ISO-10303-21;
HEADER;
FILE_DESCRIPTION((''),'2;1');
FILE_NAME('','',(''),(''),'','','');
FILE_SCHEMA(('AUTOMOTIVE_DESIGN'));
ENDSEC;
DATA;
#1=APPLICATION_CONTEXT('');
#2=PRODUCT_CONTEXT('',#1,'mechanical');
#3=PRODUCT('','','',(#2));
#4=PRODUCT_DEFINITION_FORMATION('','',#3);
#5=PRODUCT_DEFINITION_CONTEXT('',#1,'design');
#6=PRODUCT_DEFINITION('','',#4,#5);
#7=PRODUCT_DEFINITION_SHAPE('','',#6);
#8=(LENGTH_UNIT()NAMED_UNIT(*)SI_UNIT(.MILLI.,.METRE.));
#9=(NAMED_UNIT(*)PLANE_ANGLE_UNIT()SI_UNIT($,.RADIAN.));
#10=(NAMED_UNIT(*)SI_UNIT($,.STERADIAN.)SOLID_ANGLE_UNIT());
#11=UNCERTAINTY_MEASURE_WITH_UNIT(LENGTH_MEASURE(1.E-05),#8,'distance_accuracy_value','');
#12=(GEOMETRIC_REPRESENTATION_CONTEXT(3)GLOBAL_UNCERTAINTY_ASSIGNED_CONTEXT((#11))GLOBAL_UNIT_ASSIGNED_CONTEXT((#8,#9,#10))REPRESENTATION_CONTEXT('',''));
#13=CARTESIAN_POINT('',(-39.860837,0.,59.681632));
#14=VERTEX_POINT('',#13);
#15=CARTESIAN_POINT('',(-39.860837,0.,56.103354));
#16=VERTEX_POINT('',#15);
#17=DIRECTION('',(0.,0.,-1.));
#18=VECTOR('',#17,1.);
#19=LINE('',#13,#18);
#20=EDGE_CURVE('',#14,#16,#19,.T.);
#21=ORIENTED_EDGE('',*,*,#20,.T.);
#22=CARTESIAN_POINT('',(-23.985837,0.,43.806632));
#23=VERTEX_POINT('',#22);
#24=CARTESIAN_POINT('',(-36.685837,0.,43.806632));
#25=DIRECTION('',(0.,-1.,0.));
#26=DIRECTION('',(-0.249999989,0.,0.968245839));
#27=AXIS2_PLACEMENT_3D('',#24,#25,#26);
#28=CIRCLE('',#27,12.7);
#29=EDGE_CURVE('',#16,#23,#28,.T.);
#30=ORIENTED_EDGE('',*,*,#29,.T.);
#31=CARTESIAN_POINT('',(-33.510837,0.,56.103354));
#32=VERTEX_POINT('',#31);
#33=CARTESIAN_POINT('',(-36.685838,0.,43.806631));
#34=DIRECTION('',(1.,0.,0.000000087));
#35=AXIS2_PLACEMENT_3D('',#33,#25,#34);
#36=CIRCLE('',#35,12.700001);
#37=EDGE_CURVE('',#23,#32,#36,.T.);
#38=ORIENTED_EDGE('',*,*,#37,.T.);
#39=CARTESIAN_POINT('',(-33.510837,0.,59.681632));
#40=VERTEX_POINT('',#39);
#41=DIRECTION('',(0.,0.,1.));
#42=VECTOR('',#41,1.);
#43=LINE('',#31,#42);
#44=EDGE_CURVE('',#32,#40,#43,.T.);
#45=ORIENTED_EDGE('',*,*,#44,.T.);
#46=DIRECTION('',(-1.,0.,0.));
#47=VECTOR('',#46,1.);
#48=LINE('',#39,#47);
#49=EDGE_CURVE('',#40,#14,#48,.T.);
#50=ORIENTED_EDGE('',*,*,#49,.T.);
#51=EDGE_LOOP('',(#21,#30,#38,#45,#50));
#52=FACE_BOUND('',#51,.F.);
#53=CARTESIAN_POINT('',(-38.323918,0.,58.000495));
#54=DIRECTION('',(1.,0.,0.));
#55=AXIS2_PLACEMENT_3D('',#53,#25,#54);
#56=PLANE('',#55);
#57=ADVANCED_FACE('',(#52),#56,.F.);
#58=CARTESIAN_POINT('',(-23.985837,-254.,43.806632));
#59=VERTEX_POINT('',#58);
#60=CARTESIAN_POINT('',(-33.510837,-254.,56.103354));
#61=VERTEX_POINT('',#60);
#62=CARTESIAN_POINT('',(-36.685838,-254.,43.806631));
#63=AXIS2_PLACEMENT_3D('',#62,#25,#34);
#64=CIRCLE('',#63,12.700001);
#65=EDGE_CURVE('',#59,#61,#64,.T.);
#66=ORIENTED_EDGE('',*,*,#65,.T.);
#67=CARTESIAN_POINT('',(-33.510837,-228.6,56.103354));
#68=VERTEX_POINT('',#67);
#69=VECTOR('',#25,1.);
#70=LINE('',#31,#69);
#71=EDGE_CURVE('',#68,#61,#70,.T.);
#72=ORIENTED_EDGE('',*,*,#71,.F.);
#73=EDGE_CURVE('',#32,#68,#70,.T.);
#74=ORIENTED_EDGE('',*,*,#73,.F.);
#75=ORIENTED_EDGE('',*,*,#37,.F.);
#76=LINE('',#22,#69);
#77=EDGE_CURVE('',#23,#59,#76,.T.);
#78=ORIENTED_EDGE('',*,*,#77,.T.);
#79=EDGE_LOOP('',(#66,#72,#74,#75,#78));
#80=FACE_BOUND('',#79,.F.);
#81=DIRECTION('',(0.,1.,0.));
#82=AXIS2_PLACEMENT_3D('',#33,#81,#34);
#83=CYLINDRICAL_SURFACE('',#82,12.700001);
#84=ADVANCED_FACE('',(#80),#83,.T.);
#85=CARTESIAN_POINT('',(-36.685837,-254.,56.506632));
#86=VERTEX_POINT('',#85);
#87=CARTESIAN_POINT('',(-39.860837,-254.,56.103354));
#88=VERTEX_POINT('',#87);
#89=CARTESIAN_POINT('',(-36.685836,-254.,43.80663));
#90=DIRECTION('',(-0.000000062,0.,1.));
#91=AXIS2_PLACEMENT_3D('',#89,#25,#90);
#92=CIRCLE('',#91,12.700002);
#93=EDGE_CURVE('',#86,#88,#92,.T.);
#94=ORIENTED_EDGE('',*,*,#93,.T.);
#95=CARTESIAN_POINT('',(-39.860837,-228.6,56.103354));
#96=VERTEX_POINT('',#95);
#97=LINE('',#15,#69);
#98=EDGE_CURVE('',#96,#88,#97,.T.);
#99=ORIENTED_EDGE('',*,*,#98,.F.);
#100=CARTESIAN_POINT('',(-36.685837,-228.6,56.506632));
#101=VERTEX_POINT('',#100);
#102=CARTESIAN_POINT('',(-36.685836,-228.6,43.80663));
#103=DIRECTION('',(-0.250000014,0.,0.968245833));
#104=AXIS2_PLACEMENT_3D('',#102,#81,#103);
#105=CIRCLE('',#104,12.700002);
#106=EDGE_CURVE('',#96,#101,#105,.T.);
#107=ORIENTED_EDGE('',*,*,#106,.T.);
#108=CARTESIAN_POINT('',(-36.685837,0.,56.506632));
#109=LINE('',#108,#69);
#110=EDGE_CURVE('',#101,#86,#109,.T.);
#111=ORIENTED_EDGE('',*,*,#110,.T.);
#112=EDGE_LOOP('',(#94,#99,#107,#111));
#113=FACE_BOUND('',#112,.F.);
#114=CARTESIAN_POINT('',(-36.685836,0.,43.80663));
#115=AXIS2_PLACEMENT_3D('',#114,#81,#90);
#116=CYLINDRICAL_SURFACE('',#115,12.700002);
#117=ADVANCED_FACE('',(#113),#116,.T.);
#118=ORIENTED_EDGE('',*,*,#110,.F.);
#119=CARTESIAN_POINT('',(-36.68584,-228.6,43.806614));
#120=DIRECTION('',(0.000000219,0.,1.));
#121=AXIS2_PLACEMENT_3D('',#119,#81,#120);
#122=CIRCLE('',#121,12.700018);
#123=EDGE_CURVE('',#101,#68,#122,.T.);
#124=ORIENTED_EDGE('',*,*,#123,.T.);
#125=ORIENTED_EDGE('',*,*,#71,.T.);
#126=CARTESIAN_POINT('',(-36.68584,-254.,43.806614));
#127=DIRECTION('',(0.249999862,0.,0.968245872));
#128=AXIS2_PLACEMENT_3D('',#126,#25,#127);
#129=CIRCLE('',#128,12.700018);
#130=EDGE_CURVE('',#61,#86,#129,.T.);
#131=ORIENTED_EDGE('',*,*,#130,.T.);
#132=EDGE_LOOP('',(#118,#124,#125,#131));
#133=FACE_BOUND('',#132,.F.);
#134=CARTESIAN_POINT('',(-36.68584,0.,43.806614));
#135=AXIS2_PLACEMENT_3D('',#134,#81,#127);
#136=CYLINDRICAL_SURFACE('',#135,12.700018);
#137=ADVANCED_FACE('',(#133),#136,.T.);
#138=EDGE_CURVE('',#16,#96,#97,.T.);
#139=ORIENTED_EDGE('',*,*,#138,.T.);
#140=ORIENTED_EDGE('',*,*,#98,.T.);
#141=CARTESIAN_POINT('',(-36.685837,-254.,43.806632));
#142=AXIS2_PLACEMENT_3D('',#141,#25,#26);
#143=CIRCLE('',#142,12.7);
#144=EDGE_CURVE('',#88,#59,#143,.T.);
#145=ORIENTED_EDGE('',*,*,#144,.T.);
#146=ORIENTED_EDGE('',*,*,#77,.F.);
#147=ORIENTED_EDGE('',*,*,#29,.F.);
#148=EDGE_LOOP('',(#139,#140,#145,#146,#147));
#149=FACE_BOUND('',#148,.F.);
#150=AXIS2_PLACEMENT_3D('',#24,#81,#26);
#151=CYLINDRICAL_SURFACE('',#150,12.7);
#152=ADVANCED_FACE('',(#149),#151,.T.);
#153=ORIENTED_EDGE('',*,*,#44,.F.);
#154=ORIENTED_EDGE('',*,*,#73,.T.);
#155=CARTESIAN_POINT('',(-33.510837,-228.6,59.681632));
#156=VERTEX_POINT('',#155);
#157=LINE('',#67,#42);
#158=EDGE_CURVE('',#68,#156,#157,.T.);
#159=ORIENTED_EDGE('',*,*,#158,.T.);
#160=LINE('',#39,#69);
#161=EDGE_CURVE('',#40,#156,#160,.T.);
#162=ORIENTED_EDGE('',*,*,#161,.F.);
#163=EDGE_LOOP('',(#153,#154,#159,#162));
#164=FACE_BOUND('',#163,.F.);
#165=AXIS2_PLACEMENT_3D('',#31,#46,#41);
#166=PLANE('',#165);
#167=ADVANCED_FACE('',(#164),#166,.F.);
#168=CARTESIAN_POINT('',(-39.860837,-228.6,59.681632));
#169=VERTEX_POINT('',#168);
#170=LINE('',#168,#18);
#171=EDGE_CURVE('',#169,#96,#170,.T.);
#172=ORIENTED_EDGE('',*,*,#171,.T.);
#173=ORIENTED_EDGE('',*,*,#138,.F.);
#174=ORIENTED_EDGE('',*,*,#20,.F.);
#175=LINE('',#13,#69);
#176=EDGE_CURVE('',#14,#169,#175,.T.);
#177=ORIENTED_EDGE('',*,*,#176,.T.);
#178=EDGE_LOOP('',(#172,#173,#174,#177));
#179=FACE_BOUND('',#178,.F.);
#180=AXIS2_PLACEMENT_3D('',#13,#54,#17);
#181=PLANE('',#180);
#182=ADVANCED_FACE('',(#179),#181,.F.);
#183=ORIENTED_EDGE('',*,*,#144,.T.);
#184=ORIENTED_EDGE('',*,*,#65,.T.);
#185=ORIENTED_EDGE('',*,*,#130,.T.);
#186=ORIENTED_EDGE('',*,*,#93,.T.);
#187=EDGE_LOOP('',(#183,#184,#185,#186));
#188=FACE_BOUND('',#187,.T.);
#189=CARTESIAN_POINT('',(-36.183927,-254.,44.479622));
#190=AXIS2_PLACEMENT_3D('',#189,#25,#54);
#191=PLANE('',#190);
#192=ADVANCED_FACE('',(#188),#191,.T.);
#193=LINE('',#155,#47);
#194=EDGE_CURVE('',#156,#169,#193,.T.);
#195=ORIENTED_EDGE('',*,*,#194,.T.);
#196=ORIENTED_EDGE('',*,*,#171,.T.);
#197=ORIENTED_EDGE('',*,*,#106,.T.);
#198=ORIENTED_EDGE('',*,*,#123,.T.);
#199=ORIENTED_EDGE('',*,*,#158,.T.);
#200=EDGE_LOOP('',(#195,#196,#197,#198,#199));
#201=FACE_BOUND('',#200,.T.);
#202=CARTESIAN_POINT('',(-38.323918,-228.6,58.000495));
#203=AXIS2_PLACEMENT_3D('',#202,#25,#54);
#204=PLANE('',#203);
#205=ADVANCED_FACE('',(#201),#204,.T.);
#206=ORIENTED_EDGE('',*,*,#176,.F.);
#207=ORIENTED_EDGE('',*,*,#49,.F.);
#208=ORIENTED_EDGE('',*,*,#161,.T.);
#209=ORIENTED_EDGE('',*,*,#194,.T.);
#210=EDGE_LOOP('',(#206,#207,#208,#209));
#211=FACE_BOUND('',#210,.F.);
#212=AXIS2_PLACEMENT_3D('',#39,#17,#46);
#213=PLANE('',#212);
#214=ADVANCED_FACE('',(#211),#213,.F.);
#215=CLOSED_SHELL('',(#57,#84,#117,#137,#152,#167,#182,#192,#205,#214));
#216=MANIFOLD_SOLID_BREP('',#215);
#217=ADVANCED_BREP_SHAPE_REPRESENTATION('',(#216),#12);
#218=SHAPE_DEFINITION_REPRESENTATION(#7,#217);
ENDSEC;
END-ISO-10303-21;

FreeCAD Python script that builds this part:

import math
import FreeCAD as App
import Part
import Sketcher
from FreeCAD import Vector
Q = App.Units.Quantity

doc = App.newDocument("Part")
body = doc.addObject("PartDesign::Body", "Body")

# Sketch on XZ plane
sketch1 = body.newObject("Sketcher::SketchObject", "Sketch")
sketch1.AttachmentSupport = (doc.getObject("XZ_Plane"), [""])
sketch1.MapMode = "FlatFace"
sketch1.addGeometry([
    Part.ArcOfCircle(Part.Circle(Vector(-36.7, 43.8, 0), Vector(0, 0, 1), 12.7), math.radians(104), math.radians(360)),
    Part.ArcOfCircle(Part.Circle(Vector(-36.7, 43.8, 0), Vector(0, 0, 1), 12.7), math.radians(0), math.radians(76)),
    Part.ArcOfCircle(Part.Circle(Vector(-36.7, 43.8, 0), Vector(0, 0, 1), 12.7), math.radians(75.52), math.radians(90)),
    Part.ArcOfCircle(Part.Circle(Vector(-36.7, 43.8, 0), Vector(0, 0, 1), 12.7), math.radians(90), math.radians(104.48)),
], False)
sketch1.addConstraint([
    Sketcher.Constraint("Tangent", 0, 2, 1, 1),
    Sketcher.Constraint("Tangent", 1, 2, 2, 1),
    Sketcher.Constraint("Tangent", 2, 2, 3, 1),
    Sketcher.Constraint("Tangent", 3, 2, 0, 1),
    Sketcher.Constraint("Equal", 0, 1),
    Sketcher.Constraint("Horizontal", 1, 3, 0, 2),
    Sketcher.Constraint("Horizontal", 1, 2, 3, 2),
    Sketcher.Constraint("Vertical", 3, 3, 2, 2),
    Sketcher.Constraint("Radius", 0, Q("0.5 in")),
    Sketcher.Constraint("DistanceX", 3, 2, 1, 2, Q("0.25 in")),
    Sketcher.Constraint("DistanceY", -1, 1, 0, 3, 43.806632),
    Sketcher.Constraint("DistanceX", 1, 3, -1, 1, 36.685838),
])
pad1 = body.newObject("PartDesign::Pad", "Pad")
pad1.Profile = sketch1
pad1.Length = Q("10 in")

# Sketch on XZ plane
sketch2 = body.newObject("Sketcher::SketchObject", "Sketch001")
sketch2.AttachmentSupport = (doc.getObject("XZ_Plane"), [""])
sketch2.MapMode = "FlatFace"
sketch2.addGeometry([
    Part.LineSegment(Vector(-39.9, 59.7, 0), Vector(-39.9, 56.1, 0)),  # 0
    Part.ArcOfCircle(Part.Circle(Vector(-36.7, 43.8, 0), Vector(0, 0, 1), 12.7), math.radians(90), math.radians(104.48)),  # 1
    Part.ArcOfCircle(Part.Circle(Vector(-36.7, 43.8, 0), Vector(0, 0, 1), 12.7), math.radians(75.52), math.radians(90)),  # 2
    Part.LineSegment(Vector(-33.5, 56.1, 0), Vector(-33.5, 59.7, 0)),  # 3
    Part.LineSegment(Vector(-33.5, 59.7, 0), Vector(-39.9, 59.7, 0)),  # 4
], False)
sketch2.addConstraint([
    Sketcher.Constraint("Coincident", 0, 2, 1, 2),
    Sketcher.Constraint("Tangent", 1, 1, 2, 2),
    Sketcher.Constraint("Coincident", 2, 1, 3, 1),
    Sketcher.Constraint("Coincident", 3, 2, 4, 1),
    Sketcher.Constraint("Coincident", 4, 2, 0, 1),
    Sketcher.Constraint("Vertical", 0),
    Sketcher.Constraint("Vertical", 3),
    Sketcher.Constraint("Horizontal", 4),
    Sketcher.Constraint("Horizontal", 0, 2, 2, 1),
    Sketcher.Constraint("Radius", 1, Q("0.5000001 in")),
    Sketcher.Constraint("DistanceX", 4, 2, 4, 1, Q("0.25 in")),
    Sketcher.Constraint("Radius", 2, 12.700018),
    Sketcher.Constraint("DistanceX", 0, 2, 1, 1, Q("0.125 in")),
    Sketcher.Constraint("DistanceY", 1, 1, 3, 2, Q("0.125 in")),
    Sketcher.Constraint("DistanceY", -1, 1, 1, 3, 43.80663),
    Sketcher.Constraint("DistanceX", 2, 3, -1, 1, 36.68584),
])
pad2 = body.newObject("PartDesign::Pad", "Pad001")
pad2.Profile = sketch2
pad2.Length = Q("9 in")

doc.recompute()
